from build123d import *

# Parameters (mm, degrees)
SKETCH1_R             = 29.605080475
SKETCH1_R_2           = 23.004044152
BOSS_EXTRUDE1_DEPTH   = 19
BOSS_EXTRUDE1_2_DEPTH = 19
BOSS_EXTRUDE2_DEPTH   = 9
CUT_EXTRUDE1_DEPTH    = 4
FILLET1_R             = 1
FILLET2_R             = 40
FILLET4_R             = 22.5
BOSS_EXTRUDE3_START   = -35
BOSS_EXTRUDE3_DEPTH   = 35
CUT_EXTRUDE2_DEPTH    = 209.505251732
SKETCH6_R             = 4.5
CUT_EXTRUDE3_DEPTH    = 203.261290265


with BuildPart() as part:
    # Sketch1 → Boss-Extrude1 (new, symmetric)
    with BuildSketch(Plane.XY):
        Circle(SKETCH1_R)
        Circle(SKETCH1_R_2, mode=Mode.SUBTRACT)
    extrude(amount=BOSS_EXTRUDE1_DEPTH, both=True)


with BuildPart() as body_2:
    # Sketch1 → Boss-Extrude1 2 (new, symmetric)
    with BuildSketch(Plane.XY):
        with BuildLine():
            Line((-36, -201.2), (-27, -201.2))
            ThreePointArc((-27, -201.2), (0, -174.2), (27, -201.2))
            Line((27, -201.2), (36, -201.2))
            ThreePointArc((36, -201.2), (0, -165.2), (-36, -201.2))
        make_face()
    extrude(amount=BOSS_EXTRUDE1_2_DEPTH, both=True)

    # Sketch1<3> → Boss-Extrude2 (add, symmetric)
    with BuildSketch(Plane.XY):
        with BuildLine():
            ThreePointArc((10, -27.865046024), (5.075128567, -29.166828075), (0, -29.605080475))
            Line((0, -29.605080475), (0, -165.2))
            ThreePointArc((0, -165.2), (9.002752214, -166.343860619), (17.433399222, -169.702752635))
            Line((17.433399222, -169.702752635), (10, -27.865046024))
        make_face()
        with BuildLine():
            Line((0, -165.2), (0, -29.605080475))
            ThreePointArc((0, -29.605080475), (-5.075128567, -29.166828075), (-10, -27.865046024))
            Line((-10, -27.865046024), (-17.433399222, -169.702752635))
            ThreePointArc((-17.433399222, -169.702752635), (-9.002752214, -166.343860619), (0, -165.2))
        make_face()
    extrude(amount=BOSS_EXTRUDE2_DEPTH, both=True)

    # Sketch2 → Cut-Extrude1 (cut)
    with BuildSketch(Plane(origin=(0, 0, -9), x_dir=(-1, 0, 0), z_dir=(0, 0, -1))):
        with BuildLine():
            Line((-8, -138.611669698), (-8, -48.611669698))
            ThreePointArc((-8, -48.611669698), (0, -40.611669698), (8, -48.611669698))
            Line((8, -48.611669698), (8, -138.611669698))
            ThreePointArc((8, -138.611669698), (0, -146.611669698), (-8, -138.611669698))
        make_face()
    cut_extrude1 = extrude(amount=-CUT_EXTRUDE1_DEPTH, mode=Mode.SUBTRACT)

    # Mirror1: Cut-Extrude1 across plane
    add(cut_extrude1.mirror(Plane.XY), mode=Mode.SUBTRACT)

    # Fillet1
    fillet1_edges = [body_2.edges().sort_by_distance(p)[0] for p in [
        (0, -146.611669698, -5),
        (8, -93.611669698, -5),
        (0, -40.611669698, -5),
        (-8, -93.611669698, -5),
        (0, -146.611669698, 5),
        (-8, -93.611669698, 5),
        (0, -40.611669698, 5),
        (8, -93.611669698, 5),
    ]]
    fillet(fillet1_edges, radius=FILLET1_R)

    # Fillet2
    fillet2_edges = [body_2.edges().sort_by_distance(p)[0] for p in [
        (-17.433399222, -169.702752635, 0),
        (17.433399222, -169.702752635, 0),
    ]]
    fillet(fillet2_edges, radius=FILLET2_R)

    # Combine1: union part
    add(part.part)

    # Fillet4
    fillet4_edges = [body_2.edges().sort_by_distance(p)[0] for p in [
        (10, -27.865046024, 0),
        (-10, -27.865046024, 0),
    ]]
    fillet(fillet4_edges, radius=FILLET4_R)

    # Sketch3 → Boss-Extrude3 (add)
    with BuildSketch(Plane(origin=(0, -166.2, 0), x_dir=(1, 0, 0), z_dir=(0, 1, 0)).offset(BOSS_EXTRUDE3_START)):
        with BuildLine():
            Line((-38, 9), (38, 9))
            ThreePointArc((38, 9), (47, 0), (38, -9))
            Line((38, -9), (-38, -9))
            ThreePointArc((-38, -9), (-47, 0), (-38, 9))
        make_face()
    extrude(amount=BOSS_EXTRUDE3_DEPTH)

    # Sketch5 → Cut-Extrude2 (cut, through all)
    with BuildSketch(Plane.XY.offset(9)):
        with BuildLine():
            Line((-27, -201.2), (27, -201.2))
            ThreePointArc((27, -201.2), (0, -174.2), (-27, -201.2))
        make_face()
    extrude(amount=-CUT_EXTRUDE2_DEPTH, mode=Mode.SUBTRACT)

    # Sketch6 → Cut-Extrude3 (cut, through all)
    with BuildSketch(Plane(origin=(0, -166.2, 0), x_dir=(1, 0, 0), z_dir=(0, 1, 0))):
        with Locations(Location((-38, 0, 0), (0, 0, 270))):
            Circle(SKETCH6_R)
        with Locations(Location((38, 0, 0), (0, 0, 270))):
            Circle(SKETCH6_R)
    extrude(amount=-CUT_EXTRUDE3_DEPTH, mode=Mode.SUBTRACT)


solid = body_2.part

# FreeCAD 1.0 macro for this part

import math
import FreeCAD as App
import Part
import Sketcher
Q = App.Units.Quantity


def edges_at(feature, points):
    """Names of the edges that pass closest to the given points."""
    edges = feature.Shape.Edges
    near = lambda p: min(range(len(edges)), key=lambda i: edges[i].distToShape(Part.Vertex(*p))[0])
    return sorted({f"Edge{near(p) + 1}" for p in points})

doc = App.newDocument("Part")
body = doc.addObject("PartDesign::Body", "Body")

# Sketch on XY plane
sketch1 = body.newObject("Sketcher::SketchObject", "Sketch")
sketch1.AttachmentSupport = (doc.getObject("XY_Plane"), [""])
sketch1.MapMode = "FlatFace"
sketch1.addGeometry([
    Part.Circle(App.Vector(0, 0, 0), App.Vector(0, 0, 1), 29.60508),
    Part.Circle(App.Vector(0, 0, 0), App.Vector(0, 0, 1), 23.004044),
], False)
sketch1.addConstraint([
    Sketcher.Constraint("Coincident", 0, 3, -1, 1),
    Sketcher.Constraint("Coincident", 1, 3, -1, 1),
    Sketcher.Constraint("Diameter", 0, Q("59.210161 mm")),
    Sketcher.Constraint("Diameter", 1, Q("46.008088 mm")),
])
pad1 = body.newObject("PartDesign::Pad", "Pad")
pad1.Profile = sketch1
pad1.Length = 38
pad1.Midplane = True
body2 = doc.addObject("PartDesign::Body", "Body001")

# Sketch on XY plane
sketch2 = body2.newObject("Sketcher::SketchObject", "Sketch001")
sketch2.AttachmentSupport = (doc.getObject("XY_Plane001"), [""])
sketch2.MapMode = "FlatFace"
sketch2.addGeometry([
    Part.LineSegment(App.Vector(-36, -201.2, 0), App.Vector(-27, -201.2, 0)),
    Part.ArcOfCircle(Part.Circle(App.Vector(0, -201.2, 0), App.Vector(0, 0, 1), 27), math.radians(0), math.radians(180)),
    Part.LineSegment(App.Vector(27, -201.2, 0), App.Vector(36, -201.2, 0)),
    Part.ArcOfCircle(Part.Circle(App.Vector(0, -201.2, 0), App.Vector(0, 0, 1), 36), math.radians(0), math.radians(180)),
], False)
sketch2.addConstraint([
    Sketcher.Constraint("Coincident", 0, 2, 1, 2),
    Sketcher.Constraint("Coincident", 1, 1, 2, 1),
    Sketcher.Constraint("Coincident", 2, 2, 3, 1),
    Sketcher.Constraint("Coincident", 3, 2, 0, 1),
    Sketcher.Constraint("Horizontal", 0),
    Sketcher.Constraint("Horizontal", 2),
    Sketcher.Constraint("Coincident", 3, 3, 1, 3),
    Sketcher.Constraint("Symmetric", 0, 2, 1, 1, -2),
    Sketcher.Constraint("Horizontal", 3, 3, 0, 2),
    Sketcher.Constraint("Radius", 1, Q("27 mm")),
    Sketcher.Constraint("Radius", 3, Q("36 mm")),
    Sketcher.Constraint("DistanceY", 1, 3, -1, 1, Q("201.2 mm")),
])
pad2 = body2.newObject("PartDesign::Pad", "Pad001")
pad2.Profile = sketch2
pad2.Length = 38
pad2.Midplane = True

# Sketch on XY plane
sketch3 = body2.newObject("Sketcher::SketchObject", "Sketch002")
sketch3.AttachmentSupport = (doc.getObject("XY_Plane001"), [""])
sketch3.MapMode = "FlatFace"
sketch3.addGeometry([
    Part.ArcOfCircle(Part.Circle(App.Vector(0, 0, 0), App.Vector(0, 0, 1), 29.60508), math.radians(-90), math.radians(-70.258331)),  # 0
    Part.ArcOfCircle(Part.Circle(App.Vector(0, 0, 0), App.Vector(0, 0, 1), 29.60508), math.radians(-109.741669), math.radians(-90)),  # 1
    Part.LineSegment(App.Vector(-10, -27.865046, 0), App.Vector(-17.433399, -169.702753, 0)),  # 2
    Part.ArcOfCircle(Part.Circle(App.Vector(0, -201.2, 0), App.Vector(0, 0, 1), 36), math.radians(90), math.radians(118.964072)),  # 3
    Part.ArcOfCircle(Part.Circle(App.Vector(0, -201.2, 0), App.Vector(0, 0, 1), 36), math.radians(61.035928), math.radians(90)),  # 4
    Part.LineSegment(App.Vector(17.433399, -169.702753, 0), App.Vector(10, -27.865046, 0)),  # 5
], False)
sketch3.addConstraint([
    Sketcher.Constraint("Tangent", 0, 1, 1, 2),
    Sketcher.Constraint("Coincident", 1, 1, 2, 1),
    Sketcher.Constraint("Coincident", 2, 2, 3, 2),
    Sketcher.Constraint("Tangent", 3, 1, 4, 2),
    Sketcher.Constraint("Coincident", 4, 1, 5, 1),
    Sketcher.Constraint("Coincident", 5, 2, 0, 2),
    Sketcher.Constraint("Coincident", 0, 3, -1, 1),
    Sketcher.Constraint("Equal", 0, 1),
    Sketcher.Constraint("Equal", 3, 4),
    Sketcher.Constraint("Symmetric", 2, 2, 4, 1, -2),
    Sketcher.Constraint("PointOnObject", 0, 1, -2),
    Sketcher.Constraint("PointOnObject", 3, 1, -2),
    Sketcher.Constraint("Horizontal", 1, 1, 5, 2),
    Sketcher.Constraint("Radius", 3, Q("36 mm")),
    Sketcher.Constraint("Angle", 2, Q("-93 deg")),
    Sketcher.Constraint("DistanceX", 1, 1, -1, 1, Q("10 mm")),
    Sketcher.Constraint("DistanceY", 3, 3, -1, 1, Q("201.2 mm")),
    Sketcher.Constraint("Radius", 0, Q("29.60508 mm")),
])
pad3 = body2.newObject("PartDesign::Pad", "Pad002")
pad3.Profile = sketch3
pad3.Length = 18
pad3.Midplane = True

# Sketch on XY plane
sketch4 = body2.newObject("Sketcher::SketchObject", "Sketch003")
sketch4.AttachmentSupport = (doc.getObject("XY_Plane001"), [""])
sketch4.MapMode = "FlatFace"
sketch4.AttachmentOffset = App.Placement(App.Vector(0, 0, -9), App.Rotation())
sketch4.addGeometry([
    Part.LineSegment(App.Vector(8, -48.61167, 0), App.Vector(8, -138.61167, 0)),
    Part.ArcOfCircle(Part.Circle(App.Vector(0, -138.61167, 0), App.Vector(0, 0, 1), 8), math.radians(180), math.radians(360)),
    Part.LineSegment(App.Vector(-8, -138.61167, 0), App.Vector(-8, -48.61167, 0)),
    Part.ArcOfCircle(Part.Circle(App.Vector(0, -48.61167, 0), App.Vector(0, 0, 1), 8), math.radians(0), math.radians(180)),
], False)
sketch4.addConstraint([
    Sketcher.Constraint("Tangent", 0, 2, 1, 2),
    Sketcher.Constraint("Tangent", 1, 1, 2, 1),
    Sketcher.Constraint("Tangent", 2, 2, 3, 2),
    Sketcher.Constraint("Tangent", 3, 1, 0, 1),
    Sketcher.Constraint("Vertical", 0),
    Sketcher.Constraint("Vertical", 2),
    Sketcher.Constraint("PointOnObject", 1, 3, -2),
    Sketcher.Constraint("Radius", 1, Q("8 mm")),
    Sketcher.Constraint("DistanceY", 0, 2, 0, 1, Q("90 mm")),
    Sketcher.Constraint("DistanceY", 1, 3, -1, 1, Q("138.61167 mm")),
])
pocket1 = body2.newObject("PartDesign::Pocket", "Pocket")
pocket1.Profile = sketch4
pocket1.Length = 4
pocket1.Reversed = True
doc.recompute()

mirrored = body2.newObject("PartDesign::Mirrored", "Mirrored")
mirrored.Originals = [pocket1]
mirrored.MirrorPlane = (doc.getObject("XY_Plane001"), [""])
body2.Tip = mirrored
doc.recompute()

fillet = body2.newObject("PartDesign::Fillet", "Fillet")
fillet.Base = (mirrored, edges_at(mirrored, [
    (0, -146.612, -5),
    (8, -93.612, -5),
    (0, -40.612, -5),
    (-8, -93.612, -5),
    (0, -146.612, 5),
    (-8, -93.612, 5),
    (0, -40.612, 5),
    (8, -93.612, 5),
]))
fillet.Radius = 1
doc.recompute()

fillet2 = body2.newObject("PartDesign::Fillet", "Fillet001")
fillet2.Base = (fillet, edges_at(fillet, [(-17.433, -169.703, 0), (17.433, -169.703, 0)]))
fillet2.Radius = 40
doc.recompute()

boolean = body2.newObject("PartDesign::Boolean", "Boolean")
boolean.Type = "Fuse"
boolean.addObjects([body])
doc.recompute()

fillet3 = body2.newObject("PartDesign::Fillet", "Fillet002")
fillet3.Base = (boolean, edges_at(boolean, [(10, -27.865, 0), (-10, -27.865, 0)]))
fillet3.Radius = 22.5

# Sketch on XZ plane
sketch5 = body2.newObject("Sketcher::SketchObject", "Sketch004")
sketch5.AttachmentSupport = (doc.getObject("XZ_Plane001"), [""])
sketch5.MapMode = "FlatFace"
sketch5.AttachmentOffset = App.Placement(App.Vector(0, 0, 201.2), App.Rotation())
sketch5.addGeometry([
    Part.LineSegment(App.Vector(38, -9, 0), App.Vector(-38, -9, 0)),
    Part.ArcOfCircle(Part.Circle(App.Vector(-38, 0, 0), App.Vector(0, 0, 1), 9), math.radians(90), math.radians(270)),
    Part.LineSegment(App.Vector(-38, 9, 0), App.Vector(38, 9, 0)),
    Part.ArcOfCircle(Part.Circle(App.Vector(38, 0, 0), App.Vector(0, 0, 1), 9), math.radians(-90), math.radians(90)),
], False)
sketch5.addConstraint([
    Sketcher.Constraint("Tangent", 0, 2, 1, 2),
    Sketcher.Constraint("Tangent", 1, 1, 2, 1),
    Sketcher.Constraint("Tangent", 2, 2, 3, 2),
    Sketcher.Constraint("Tangent", 3, 1, 0, 1),
    Sketcher.Constraint("Horizontal", 0),
    Sketcher.Constraint("Horizontal", 2),
    Sketcher.Constraint("Symmetric", 1, 3, 3, 3, -1, 1),
    Sketcher.Constraint("Radius", 1, Q("9 mm")),
    Sketcher.Constraint("DistanceX", 0, 2, 0, 1, Q("76 mm")),
])
pad4 = body2.newObject("PartDesign::Pad", "Pad003")
pad4.Profile = sketch5
pad4.Length = 35
pad4.Reversed = True

# Sketch on XY plane
sketch6 = body2.newObject("Sketcher::SketchObject", "Sketch005")
sketch6.AttachmentSupport = (doc.getObject("XY_Plane001"), [""])
sketch6.MapMode = "FlatFace"
sketch6.AttachmentOffset = App.Placement(App.Vector(0, 0, 9), App.Rotation())
sketch6.addGeometry([
    Part.LineSegment(App.Vector(-27, -201.2, 0), App.Vector(27, -201.2, 0)),
    Part.ArcOfCircle(Part.Circle(App.Vector(0, -201.2, 0), App.Vector(0, 0, 1), 27), math.radians(0), math.radians(180)),
], False)
sketch6.addConstraint([
    Sketcher.Constraint("Coincident", 0, 1, 1, 2),
    Sketcher.Constraint("Coincident", 1, 1, 0, 2),
    Sketcher.Constraint("Horizontal", 0),
    Sketcher.Constraint("PointOnObject", 1, 3, -2),
    Sketcher.Constraint("Horizontal", 1, 3, 0, 1),
    Sketcher.Constraint("Radius", 1, Q("27 mm")),
    Sketcher.Constraint("DistanceY", 1, 3, -1, 1, Q("201.2 mm")),
])
pocket2 = body2.newObject("PartDesign::Pocket", "Pocket001")
pocket2.Profile = sketch6
pocket2.Type = "ThroughAll"

# Sketch on XZ plane
sketch7 = body2.newObject("Sketcher::SketchObject", "Sketch006")
sketch7.AttachmentSupport = (doc.getObject("XZ_Plane001"), [""])
sketch7.MapMode = "FlatFace"
sketch7.AttachmentOffset = App.Placement(App.Vector(0, 0, 166.2), App.Rotation())
sketch7.addGeometry([
    Part.Circle(App.Vector(-38, 0, 0), App.Vector(0, 0, 1), 4.5),
    Part.Circle(App.Vector(38, 0, 0), App.Vector(0, 0, 1), 4.5),
], False)
sketch7.addConstraint([
    Sketcher.Constraint("Equal", 0, 1),
    Sketcher.Constraint("Symmetric", 0, 3, 1, 3, -1, 1),
    Sketcher.Constraint("PointOnObject", 0, 3, -1),
    Sketcher.Constraint("Diameter", 0, Q("9 mm")),
    Sketcher.Constraint("DistanceX", 0, 3, -1, 1, Q("38 mm")),
])
pocket3 = body2.newObject("PartDesign::Pocket", "Pocket002")
pocket3.Profile = sketch7
pocket3.Type = "ThroughAll"
pocket3.Reversed = True

doc.recompute()
